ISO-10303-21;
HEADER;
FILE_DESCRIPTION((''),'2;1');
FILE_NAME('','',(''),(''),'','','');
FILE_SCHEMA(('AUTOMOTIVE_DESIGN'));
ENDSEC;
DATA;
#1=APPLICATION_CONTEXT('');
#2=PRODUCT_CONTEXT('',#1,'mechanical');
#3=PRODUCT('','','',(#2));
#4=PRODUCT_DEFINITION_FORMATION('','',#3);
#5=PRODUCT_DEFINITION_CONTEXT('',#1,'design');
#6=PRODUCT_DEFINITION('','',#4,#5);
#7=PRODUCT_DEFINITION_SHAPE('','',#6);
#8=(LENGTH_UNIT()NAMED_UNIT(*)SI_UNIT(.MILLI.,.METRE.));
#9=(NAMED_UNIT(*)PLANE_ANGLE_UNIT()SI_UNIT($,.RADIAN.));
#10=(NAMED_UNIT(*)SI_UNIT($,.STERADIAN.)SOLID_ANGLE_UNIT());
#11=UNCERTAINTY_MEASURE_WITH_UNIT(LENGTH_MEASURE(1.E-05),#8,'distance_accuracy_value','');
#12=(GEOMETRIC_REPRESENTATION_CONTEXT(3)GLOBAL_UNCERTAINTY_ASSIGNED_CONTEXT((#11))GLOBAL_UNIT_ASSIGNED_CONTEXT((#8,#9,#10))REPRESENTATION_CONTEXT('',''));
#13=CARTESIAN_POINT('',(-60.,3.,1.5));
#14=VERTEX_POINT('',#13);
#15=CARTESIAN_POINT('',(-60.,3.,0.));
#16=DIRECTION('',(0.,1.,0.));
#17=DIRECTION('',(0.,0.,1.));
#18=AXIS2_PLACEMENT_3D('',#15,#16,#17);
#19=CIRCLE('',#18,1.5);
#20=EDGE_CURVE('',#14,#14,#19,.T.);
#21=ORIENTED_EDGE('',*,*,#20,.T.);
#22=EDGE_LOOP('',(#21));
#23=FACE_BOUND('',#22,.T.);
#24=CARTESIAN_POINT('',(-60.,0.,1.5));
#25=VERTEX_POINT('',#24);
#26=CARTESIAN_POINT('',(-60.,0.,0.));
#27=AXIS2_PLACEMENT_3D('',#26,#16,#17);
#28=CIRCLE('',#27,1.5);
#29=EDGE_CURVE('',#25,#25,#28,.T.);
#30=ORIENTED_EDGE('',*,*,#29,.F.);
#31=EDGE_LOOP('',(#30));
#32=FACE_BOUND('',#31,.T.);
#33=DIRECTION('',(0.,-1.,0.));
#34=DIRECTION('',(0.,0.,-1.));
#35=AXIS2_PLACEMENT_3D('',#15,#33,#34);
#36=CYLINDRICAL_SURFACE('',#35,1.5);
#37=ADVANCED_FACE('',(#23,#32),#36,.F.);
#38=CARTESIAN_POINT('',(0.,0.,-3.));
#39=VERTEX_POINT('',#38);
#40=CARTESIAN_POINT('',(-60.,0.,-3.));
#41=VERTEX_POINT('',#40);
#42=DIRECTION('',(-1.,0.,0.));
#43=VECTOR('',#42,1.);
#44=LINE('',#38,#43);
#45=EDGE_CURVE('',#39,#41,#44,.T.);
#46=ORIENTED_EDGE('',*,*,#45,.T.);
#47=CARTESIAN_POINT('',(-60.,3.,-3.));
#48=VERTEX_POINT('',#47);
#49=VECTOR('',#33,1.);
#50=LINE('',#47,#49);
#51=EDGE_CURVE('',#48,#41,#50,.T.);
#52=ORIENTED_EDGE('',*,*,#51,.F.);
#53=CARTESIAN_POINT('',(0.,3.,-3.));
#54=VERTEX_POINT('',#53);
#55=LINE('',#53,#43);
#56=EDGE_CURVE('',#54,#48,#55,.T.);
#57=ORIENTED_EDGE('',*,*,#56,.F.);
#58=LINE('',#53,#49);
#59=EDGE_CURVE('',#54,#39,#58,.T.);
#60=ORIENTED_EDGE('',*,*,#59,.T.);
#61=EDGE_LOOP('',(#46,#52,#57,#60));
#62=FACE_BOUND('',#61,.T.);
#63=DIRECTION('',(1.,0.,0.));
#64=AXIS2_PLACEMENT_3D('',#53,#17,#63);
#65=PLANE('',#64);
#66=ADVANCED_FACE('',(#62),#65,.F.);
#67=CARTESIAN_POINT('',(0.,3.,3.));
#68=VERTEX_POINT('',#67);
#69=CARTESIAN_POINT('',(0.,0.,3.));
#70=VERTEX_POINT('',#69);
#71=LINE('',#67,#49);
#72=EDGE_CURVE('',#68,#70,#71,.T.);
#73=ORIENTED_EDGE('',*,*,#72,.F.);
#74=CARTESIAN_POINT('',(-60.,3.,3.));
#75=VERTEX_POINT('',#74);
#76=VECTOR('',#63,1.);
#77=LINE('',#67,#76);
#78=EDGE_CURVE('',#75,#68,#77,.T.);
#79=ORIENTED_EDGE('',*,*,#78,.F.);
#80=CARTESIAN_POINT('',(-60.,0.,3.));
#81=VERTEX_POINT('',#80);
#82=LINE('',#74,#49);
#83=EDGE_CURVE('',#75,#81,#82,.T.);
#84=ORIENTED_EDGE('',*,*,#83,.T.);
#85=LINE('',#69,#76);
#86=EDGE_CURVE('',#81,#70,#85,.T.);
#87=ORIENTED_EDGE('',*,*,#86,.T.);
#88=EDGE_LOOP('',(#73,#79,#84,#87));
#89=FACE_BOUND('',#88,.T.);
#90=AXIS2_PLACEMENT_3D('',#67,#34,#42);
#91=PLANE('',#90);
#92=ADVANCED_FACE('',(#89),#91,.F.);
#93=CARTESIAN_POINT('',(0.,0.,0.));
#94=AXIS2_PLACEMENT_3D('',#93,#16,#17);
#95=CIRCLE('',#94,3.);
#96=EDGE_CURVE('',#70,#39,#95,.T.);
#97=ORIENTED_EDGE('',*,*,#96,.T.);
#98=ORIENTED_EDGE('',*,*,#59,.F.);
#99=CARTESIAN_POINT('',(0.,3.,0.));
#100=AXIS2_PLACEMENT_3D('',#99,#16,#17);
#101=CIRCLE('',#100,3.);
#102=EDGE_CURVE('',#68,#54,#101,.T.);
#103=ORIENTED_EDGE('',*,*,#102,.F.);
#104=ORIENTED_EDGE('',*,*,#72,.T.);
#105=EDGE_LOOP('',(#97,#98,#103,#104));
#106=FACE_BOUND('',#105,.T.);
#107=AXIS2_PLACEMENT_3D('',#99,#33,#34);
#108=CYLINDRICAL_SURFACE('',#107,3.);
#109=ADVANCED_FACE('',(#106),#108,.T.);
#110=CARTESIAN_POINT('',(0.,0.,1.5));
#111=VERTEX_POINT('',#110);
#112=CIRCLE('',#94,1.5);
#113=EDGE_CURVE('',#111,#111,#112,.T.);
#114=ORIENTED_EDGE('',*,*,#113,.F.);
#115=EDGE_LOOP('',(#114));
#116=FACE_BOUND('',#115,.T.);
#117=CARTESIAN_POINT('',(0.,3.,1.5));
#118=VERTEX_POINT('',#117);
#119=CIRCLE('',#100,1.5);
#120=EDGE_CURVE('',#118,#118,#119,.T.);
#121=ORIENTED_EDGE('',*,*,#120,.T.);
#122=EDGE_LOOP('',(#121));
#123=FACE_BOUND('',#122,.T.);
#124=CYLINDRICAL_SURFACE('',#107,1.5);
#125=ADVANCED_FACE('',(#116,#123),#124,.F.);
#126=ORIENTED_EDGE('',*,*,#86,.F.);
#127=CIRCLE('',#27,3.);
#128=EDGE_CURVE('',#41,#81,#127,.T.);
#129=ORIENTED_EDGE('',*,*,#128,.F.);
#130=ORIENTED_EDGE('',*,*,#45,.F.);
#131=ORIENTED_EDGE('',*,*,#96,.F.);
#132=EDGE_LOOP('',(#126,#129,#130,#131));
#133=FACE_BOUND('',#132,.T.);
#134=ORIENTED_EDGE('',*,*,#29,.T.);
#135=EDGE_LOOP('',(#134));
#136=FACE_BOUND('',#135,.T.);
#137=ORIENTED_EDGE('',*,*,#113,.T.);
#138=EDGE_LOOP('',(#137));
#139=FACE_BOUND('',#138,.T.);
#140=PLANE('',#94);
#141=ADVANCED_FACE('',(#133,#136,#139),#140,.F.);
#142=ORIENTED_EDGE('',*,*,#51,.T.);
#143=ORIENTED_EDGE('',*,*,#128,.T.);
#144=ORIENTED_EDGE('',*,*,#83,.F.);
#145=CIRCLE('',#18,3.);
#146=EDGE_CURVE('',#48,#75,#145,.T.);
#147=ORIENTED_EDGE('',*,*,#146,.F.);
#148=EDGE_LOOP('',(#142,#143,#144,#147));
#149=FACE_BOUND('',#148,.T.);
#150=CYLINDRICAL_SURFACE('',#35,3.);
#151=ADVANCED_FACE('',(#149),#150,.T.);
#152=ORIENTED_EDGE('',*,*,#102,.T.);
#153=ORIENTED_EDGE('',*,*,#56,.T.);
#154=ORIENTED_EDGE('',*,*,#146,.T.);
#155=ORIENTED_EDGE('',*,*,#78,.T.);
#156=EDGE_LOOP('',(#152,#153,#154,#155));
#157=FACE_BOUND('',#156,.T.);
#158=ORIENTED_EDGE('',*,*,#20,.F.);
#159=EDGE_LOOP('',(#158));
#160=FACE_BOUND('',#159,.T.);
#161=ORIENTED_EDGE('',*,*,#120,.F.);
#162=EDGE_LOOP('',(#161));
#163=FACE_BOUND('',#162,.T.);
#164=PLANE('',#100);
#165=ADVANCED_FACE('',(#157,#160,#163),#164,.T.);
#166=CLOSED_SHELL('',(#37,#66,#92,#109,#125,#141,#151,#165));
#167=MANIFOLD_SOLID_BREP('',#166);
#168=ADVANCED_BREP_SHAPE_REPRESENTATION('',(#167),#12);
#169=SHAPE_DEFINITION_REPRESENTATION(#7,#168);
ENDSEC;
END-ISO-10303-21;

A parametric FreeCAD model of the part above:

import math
import FreeCAD as App
import Part
import Sketcher
Q = App.Units.Quantity

doc = App.newDocument("Part")
body = doc.addObject("PartDesign::Body", "Body")

# Sketch on XZ plane
sketch1 = doc.addObject("Sketcher::SketchObject", "Sketch")
body.addObject(sketch1)
sketch1.AttachmentSupport = (doc.XZ_Plane, [""])
sketch1.MapMode = "FlatFace"
sketch1.addGeometry([
    Part.LineSegment(App.Vector(0, -3, 0), App.Vector(-60, -3, 0)),  # 0
    Part.ArcOfCircle(Part.Circle(App.Vector(-60, 0, 0), App.Vector(0, 0, 1), 3), math.radians(90), math.radians(270)),  # 1
    Part.LineSegment(App.Vector(-60, 3, 0), App.Vector(0, 3, 0)),  # 2
    Part.ArcOfCircle(Part.Circle(App.Vector(0, 0, 0), App.Vector(0, 0, 1), 3), math.radians(-90), math.radians(90)),  # 3
    Part.Circle(App.Vector(-60, 0, 0), App.Vector(0, 0, 1), 1.5),  # 4
    Part.Circle(App.Vector(0, 0, 0), App.Vector(0, 0, 1), 1.5),  # 5
], False)
sketch1.addConstraint([
    Sketcher.Constraint("Tangent", 0, 2, 1, 2),
    Sketcher.Constraint("Tangent", 1, 1, 2, 1),
    Sketcher.Constraint("Tangent", 2, 2, 3, 2),
    Sketcher.Constraint("Tangent", 3, 1, 0, 1),
    Sketcher.Constraint("Horizontal", 0),
    Sketcher.Constraint("Horizontal", 2),
    Sketcher.Constraint("Coincident", 3, 3, -1, 1),
    Sketcher.Constraint("Coincident", 5, 3, -1, 1),
    Sketcher.Constraint("Coincident", 4, 3, 1, 3),
    Sketcher.Constraint("Equal", 4, 5),
    Sketcher.Constraint("Diameter", 4, Q("3 mm")),
    Sketcher.Constraint("Radius", 1, Q("3 mm")),
    Sketcher.Constraint("DistanceX", 0, 2, 0, 1, Q("60 mm")),
])
pad1 = doc.addObject("PartDesign::Pad", "Pad")
body.addObject(pad1)
pad1.Profile = sketch1
pad1.Length = 3
pad1.Reversed = True

doc.recompute()
